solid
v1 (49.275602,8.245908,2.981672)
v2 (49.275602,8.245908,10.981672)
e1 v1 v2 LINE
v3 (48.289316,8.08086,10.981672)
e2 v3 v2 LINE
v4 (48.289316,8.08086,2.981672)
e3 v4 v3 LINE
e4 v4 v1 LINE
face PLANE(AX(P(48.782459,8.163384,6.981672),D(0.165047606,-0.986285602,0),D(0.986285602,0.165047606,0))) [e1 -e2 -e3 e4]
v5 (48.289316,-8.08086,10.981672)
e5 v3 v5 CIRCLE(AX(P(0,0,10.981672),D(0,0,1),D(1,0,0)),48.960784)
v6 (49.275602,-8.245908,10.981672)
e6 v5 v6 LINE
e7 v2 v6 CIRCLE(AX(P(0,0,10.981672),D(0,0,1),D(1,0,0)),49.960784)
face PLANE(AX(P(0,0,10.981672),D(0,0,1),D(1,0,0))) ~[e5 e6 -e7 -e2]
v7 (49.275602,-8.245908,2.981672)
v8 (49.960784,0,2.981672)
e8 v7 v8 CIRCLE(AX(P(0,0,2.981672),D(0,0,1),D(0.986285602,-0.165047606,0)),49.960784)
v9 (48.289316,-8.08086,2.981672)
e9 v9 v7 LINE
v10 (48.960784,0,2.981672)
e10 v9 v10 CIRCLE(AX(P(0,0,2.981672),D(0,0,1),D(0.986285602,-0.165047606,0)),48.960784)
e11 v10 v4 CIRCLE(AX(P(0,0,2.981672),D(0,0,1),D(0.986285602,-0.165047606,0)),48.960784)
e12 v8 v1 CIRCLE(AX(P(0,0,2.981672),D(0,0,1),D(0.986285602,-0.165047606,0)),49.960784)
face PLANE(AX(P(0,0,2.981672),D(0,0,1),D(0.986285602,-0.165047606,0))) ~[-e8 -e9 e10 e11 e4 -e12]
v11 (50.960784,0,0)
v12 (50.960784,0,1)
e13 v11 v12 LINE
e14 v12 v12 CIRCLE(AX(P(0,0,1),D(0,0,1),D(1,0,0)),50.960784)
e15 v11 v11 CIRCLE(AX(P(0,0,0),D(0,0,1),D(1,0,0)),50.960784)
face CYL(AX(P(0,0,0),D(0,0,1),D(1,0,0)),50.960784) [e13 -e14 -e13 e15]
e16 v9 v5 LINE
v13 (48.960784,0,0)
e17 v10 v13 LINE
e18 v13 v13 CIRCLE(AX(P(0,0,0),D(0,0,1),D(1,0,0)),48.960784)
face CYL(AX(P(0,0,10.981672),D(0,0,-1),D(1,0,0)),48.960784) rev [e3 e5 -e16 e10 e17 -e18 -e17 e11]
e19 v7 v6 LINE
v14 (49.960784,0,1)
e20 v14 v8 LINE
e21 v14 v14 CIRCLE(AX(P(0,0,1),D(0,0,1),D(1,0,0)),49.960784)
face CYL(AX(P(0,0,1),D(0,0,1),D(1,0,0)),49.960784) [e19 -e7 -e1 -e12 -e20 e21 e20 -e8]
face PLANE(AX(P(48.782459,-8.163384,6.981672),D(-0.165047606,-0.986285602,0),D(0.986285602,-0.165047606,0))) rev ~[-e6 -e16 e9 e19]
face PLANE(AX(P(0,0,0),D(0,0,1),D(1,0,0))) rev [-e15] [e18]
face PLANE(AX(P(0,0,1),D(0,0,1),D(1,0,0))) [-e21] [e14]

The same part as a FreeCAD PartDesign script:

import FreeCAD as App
import Part
import Sketcher

V = App.Vector
Q = App.Units.Quantity


def add_polygon(sketch, points):
    """Adds a closed chain of lines whose ends are joined by coincident constraints."""
    first, n = sketch.GeometryCount, len(points)
    for a, b in zip(points, points[1:] + points[:1]):
        sketch.addGeometry(Part.LineSegment(App.Vector(*a, 0), App.Vector(*b, 0)), False)
    for i in range(n):
        sketch.addConstraint(Sketcher.Constraint("Coincident", first + i, 2, first + (i + 1) % n, 1))

doc = App.newDocument("Part")
body = doc.addObject("PartDesign::Body", "Body")

sketch1 = body.newObject("Sketcher::SketchObject", "Sketch")
sketch1.AttachmentSupport = (doc.getObject("XZ_Plane"), [""])
sketch1.MapMode = "FlatFace"
add_polygon(sketch1, [(48.960784, 0), (50.960784, 0), (50.960784, 1), (49.960784, 1), (49.960784, 10.981672), (48.960784, 10.981672)])
sketch1.addConstraint([
    Sketcher.Constraint("Horizontal", 0),
    Sketcher.Constraint("Vertical", 1),
    Sketcher.Constraint("Horizontal", 2),
    Sketcher.Constraint("Vertical", 3),
    Sketcher.Constraint("Horizontal", 4),
    Sketcher.Constraint("Vertical", 5),
    Sketcher.Constraint("PointOnObject", 0, 2, -1),
    Sketcher.Constraint("Equal", 2, 4),
    Sketcher.Constraint("Equal", 4, 1),
    Sketcher.Constraint("DistanceX", 0, 1, 0, 2, Q("2 mm")),
    Sketcher.Constraint("DistanceY", 3, 1, 3, 2, Q("9.981672 mm")),
    Sketcher.Constraint("DistanceX", -1, 1, 0, 2, Q("50.960784 mm")),
])
revolution = body.newObject("PartDesign::Revolution", "Revolution")
revolution.Profile = sketch1
revolution.ReferenceAxis = (sketch1, ["V_Axis"])
revolution.Angle = 360

sketch2 = body.newObject("Sketcher::SketchObject", "Sketch001")
sketch2.Placement = App.Placement(V(0, 0, 0), App.Rotation(V(0.986285602, -0.165047606, 0), V(0, 0, 1.000000001), V(-0.165047606, -0.986285602, 0), "ZXY"))
add_polygon(sketch2, [(48.960784, 10.981672), (48.960784, 2.981672), (49.960784, 2.981672), (49.960784, 10.981672)])
sketch2.addConstraint([
    Sketcher.Constraint("Vertical", 0),
    Sketcher.Constraint("Horizontal", 1),
    Sketcher.Constraint("Vertical", 2),
    Sketcher.Constraint("Horizontal", 3),
    Sketcher.Constraint("DistanceX", 1, 1, 1, 2, Q("1 mm")),
    Sketcher.Constraint("DistanceY", 0, 2, 0, 1, Q("8 mm")),
    Sketcher.Constraint("DistanceY", -1, 1, 0, 2, Q("2.981672 mm")),
    Sketcher.Constraint("DistanceX", -1, 1, 0, 2, Q("48.960784 mm")),
])
groove = body.newObject("PartDesign::Groove", "Groove")
groove.Profile = sketch2
groove.ReferenceAxis = (sketch2, ["V_Axis"])
groove.Angle = 19

doc.recompute()
